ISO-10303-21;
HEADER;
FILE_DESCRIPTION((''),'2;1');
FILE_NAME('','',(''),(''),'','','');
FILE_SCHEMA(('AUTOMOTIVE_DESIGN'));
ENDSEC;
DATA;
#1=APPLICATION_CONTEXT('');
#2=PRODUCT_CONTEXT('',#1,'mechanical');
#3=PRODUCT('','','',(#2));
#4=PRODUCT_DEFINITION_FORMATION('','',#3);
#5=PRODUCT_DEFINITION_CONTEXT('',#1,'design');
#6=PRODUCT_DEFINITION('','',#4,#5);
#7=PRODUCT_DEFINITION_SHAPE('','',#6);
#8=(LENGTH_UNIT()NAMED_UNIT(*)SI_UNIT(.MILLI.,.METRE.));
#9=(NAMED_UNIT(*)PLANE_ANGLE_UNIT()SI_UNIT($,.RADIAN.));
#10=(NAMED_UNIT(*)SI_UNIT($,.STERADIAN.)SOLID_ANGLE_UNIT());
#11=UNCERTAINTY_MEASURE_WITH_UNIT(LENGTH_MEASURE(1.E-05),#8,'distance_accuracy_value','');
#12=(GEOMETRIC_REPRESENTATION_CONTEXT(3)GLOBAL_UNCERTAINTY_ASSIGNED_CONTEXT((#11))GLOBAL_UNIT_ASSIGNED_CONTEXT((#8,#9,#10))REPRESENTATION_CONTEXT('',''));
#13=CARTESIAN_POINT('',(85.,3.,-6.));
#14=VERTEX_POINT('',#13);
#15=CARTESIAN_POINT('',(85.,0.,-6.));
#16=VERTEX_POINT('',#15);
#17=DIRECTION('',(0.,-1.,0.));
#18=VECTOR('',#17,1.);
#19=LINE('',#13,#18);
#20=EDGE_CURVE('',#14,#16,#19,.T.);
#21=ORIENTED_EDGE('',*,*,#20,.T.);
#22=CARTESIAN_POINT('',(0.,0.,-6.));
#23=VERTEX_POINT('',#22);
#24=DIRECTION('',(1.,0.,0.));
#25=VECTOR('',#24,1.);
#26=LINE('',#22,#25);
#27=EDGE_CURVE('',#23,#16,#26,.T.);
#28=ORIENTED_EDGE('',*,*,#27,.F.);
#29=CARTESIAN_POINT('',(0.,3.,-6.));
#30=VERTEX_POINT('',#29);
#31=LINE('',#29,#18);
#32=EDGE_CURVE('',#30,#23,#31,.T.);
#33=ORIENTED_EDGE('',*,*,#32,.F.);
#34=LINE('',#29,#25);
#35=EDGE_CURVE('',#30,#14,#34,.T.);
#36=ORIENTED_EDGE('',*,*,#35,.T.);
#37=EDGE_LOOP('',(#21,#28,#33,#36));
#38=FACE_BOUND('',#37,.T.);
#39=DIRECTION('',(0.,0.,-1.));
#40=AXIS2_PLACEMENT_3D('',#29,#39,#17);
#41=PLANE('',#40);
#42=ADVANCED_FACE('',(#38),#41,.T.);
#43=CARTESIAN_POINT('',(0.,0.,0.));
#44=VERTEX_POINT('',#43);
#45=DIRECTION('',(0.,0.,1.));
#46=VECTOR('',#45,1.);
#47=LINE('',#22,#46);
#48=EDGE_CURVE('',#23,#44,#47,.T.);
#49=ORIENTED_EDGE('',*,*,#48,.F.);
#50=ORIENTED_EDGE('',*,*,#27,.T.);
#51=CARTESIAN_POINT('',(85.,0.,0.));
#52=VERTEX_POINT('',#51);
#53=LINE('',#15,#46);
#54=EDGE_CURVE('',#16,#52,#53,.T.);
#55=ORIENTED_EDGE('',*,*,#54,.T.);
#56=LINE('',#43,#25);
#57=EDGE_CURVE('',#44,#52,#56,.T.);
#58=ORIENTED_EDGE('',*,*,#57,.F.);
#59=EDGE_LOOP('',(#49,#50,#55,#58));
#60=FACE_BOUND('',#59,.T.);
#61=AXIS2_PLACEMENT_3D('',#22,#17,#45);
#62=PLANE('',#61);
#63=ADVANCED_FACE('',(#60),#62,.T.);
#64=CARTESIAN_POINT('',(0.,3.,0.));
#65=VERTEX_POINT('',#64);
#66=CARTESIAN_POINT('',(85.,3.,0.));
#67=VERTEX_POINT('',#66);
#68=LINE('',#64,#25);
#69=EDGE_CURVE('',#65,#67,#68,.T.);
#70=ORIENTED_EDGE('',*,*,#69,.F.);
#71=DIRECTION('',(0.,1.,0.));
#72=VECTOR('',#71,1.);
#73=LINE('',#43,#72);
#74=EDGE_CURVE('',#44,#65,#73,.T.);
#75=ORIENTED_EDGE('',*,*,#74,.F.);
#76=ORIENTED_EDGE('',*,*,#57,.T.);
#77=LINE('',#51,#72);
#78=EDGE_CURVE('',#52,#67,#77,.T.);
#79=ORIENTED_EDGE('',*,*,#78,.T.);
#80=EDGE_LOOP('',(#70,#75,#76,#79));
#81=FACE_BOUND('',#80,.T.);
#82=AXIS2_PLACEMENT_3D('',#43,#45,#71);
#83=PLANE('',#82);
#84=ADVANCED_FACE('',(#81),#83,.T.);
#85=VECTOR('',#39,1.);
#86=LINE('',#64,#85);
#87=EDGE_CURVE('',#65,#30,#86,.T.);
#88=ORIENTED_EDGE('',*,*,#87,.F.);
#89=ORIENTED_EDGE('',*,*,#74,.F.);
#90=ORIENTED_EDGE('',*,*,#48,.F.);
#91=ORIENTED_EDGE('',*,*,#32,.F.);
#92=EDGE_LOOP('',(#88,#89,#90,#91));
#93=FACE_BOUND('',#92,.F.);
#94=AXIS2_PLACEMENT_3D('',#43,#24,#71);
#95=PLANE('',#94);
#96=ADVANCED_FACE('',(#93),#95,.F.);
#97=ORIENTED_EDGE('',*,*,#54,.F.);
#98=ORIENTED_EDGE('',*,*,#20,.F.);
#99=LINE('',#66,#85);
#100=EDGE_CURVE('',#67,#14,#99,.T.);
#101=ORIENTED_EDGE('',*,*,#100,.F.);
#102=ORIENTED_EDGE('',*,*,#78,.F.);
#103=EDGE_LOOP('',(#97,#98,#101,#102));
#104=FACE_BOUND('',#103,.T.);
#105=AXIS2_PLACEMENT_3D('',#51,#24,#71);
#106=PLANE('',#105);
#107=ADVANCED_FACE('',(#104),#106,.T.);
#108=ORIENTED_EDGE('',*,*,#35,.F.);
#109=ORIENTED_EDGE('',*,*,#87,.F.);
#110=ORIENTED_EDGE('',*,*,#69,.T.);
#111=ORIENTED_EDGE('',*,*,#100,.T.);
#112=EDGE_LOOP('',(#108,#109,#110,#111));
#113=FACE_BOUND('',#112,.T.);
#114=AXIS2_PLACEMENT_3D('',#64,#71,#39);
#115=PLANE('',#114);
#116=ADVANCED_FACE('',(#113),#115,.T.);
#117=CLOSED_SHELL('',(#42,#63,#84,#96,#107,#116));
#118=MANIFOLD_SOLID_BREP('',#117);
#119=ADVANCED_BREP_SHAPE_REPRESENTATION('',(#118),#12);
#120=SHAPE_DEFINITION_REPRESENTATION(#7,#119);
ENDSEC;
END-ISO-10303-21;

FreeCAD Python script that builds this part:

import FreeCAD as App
import Part
import Sketcher


def add_polygon(sketch, points):
    """Adds a closed chain of lines whose ends are joined by coincident constraints."""
    first, n = sketch.GeometryCount, len(points)
    for a, b in zip(points, points[1:] + points[:1]):
        sketch.addGeometry(Part.LineSegment(App.Vector(*a, 0), App.Vector(*b, 0)), False)
    for i in range(n):
        sketch.addConstraint(Sketcher.Constraint("Coincident", first + i, 2, first + (i + 1) % n, 1))

doc = App.newDocument("Part")
body = doc.addObject("PartDesign::Body", "Body")

# Sketch on YZ plane
sketch1 = body.newObject("Sketcher::SketchObject", "Sketch")
sketch1.AttachmentSupport = (doc.getObject("YZ_Plane"), [""])
sketch1.MapMode = "FlatFace"
add_polygon(sketch1, [(3, 0), (0, 0), (0, -6), (3, -6)])  # lines 0-3
sketch1.addConstraint(Sketcher.Constraint("Horizontal", 0))
sketch1.addConstraint(Sketcher.Constraint("Vertical", 1))
sketch1.addConstraint(Sketcher.Constraint("Horizontal", 2))
sketch1.addConstraint(Sketcher.Constraint("Vertical", 3))
sketch1.addConstraint(Sketcher.Constraint("Coincident", 0, 2, -1, 1))
sketch1.addConstraint(Sketcher.Constraint("DistanceX", 0, 2, 0, 1, 3.0))
sketch1.addConstraint(Sketcher.Constraint("DistanceY", 1, 2, 1, 1, 6.0))
pad1 = body.newObject("PartDesign::Pad", "Pad")
pad1.Profile = sketch1
pad1.Length = 85

doc.recompute()
